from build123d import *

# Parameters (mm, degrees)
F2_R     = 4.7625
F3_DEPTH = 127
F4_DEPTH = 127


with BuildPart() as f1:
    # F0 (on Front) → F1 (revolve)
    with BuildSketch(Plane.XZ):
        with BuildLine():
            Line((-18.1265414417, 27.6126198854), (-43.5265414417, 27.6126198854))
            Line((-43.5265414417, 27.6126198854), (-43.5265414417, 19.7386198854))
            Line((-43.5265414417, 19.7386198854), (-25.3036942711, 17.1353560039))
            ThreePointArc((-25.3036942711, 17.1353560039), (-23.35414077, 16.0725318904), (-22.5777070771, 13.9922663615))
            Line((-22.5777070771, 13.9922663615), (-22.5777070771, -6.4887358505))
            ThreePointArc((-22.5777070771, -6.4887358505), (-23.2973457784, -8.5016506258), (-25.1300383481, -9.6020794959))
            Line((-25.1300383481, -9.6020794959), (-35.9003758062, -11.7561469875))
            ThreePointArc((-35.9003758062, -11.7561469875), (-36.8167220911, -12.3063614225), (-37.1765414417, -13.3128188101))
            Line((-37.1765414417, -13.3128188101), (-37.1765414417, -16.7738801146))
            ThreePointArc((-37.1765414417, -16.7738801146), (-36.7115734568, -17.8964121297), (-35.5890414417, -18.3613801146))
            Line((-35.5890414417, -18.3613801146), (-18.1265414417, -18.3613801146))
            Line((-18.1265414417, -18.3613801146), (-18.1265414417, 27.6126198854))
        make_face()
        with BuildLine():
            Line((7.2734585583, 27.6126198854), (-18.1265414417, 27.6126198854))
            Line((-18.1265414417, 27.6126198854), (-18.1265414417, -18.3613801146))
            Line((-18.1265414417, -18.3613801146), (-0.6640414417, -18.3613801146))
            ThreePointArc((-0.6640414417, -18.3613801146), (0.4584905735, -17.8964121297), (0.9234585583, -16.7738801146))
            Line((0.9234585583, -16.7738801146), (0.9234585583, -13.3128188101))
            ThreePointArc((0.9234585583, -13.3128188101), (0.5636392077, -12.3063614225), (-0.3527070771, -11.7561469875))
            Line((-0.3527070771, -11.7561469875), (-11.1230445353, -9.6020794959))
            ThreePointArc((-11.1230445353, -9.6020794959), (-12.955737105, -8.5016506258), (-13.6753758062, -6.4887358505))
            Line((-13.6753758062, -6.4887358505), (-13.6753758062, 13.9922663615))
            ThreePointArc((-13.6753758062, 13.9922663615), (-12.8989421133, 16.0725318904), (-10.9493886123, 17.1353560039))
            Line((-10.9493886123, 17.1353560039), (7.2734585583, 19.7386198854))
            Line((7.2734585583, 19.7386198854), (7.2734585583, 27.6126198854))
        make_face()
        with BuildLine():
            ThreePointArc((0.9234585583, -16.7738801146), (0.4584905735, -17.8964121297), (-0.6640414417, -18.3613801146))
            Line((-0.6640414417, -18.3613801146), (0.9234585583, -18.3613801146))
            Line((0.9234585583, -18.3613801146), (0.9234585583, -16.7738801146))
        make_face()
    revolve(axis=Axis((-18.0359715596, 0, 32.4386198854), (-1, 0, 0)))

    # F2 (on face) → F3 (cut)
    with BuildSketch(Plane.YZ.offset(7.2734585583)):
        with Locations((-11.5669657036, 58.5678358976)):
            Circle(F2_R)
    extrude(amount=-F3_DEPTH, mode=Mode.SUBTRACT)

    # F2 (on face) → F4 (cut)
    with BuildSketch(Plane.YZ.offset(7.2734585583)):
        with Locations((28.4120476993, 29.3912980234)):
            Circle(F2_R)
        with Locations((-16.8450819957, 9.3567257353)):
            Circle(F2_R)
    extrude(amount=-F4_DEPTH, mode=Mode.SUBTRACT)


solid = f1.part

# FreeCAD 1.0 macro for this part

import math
import FreeCAD as App
import Part
import Sketcher

V = App.Vector
Q = App.Units.Quantity

doc = App.newDocument("Part")
body = doc.addObject("PartDesign::Body", "Body")

# Sketch on XZ plane
sketch1 = doc.addObject("Sketcher::SketchObject", "Sketch")
body.addObject(sketch1)
sketch1.AttachmentSupport = (doc.XZ_Plane, [""])
sketch1.MapMode = "FlatFace"
sketch1.addGeometry([
    Part.LineSegment(V(-43.5, 27.6, 0), V(-43.5, 19.7, 0)),  # 0
    Part.LineSegment(V(-43.5, 19.7, 0), V(-25.3, 17.1, 0)),  # 1
    Part.ArcOfCircle(Part.Circle(V(-25.8, 14, 0), V(0, 0, 1), 3.2), math.radians(0), math.radians(82)),  # 2
    Part.LineSegment(V(-22.6, 14, 0), V(-22.6, -6.5, 0)),  # 3
    Part.ArcOfCircle(Part.Circle(V(-25.8, -6.5, 0), V(0, 0, 1), 3.2), math.radians(-79), math.radians(0)),  # 4
    Part.LineSegment(V(-25.1, -9.6, 0), V(-35.9, -11.8, 0)),  # 5
    Part.ArcOfCircle(Part.Circle(V(-35.6, -13.3, 0), V(0, 0, 1), 1.6), math.radians(101), math.radians(180)),  # 6
    Part.LineSegment(V(-37.2, -13.3, 0), V(-37.2, -16.8, 0)),  # 7
    Part.ArcOfCircle(Part.Circle(V(-35.6, -16.8, 0), V(0, 0, 1), 1.6), math.radians(-180), math.radians(-90)),  # 8
    Part.LineSegment(V(-35.6, -18.4, 0), V(0.9, -18.4, 0)),  # 9
    Part.LineSegment(V(0.9, -18.4, 0), V(0.9, -13.3, 0)),  # 10
    Part.ArcOfCircle(Part.Circle(V(-0.7, -13.3, 0), V(0, 0, 1), 1.6), math.radians(0), math.radians(79)),  # 11
    Part.LineSegment(V(-0.4, -11.8, 0), V(-11.1, -9.6, 0)),  # 12
    Part.ArcOfCircle(Part.Circle(V(-10.5, -6.5, 0), V(0, 0, 1), 3.2), math.radians(180), math.radians(259)),  # 13
    Part.LineSegment(V(-13.7, -6.5, 0), V(-13.7, 14, 0)),  # 14
    Part.ArcOfCircle(Part.Circle(V(-10.5, 14, 0), V(0, 0, 1), 3.2), math.radians(98), math.radians(180)),  # 15
    Part.LineSegment(V(-10.9, 17.1, 0), V(7.3, 19.7, 0)),  # 16
    Part.LineSegment(V(7.3, 19.7, 0), V(7.3, 27.6, 0)),  # 17
    Part.LineSegment(V(7.3, 27.6, 0), V(-43.5, 27.6, 0)),  # 18
], False)
sketch1.addGeometry(Part.LineSegment(V(7.3, 32.4, 0), V(-43.5, 32.4, 0)), True)  # axis
sketch1.addConstraint([
    Sketcher.Constraint("Coincident", 0, 2, 1, 1),
    Sketcher.Constraint("Tangent", 1, 2, 2, 2),
    Sketcher.Constraint("Tangent", 2, 1, 3, 1),
    Sketcher.Constraint("Tangent", 3, 2, 4, 2),
    Sketcher.Constraint("Tangent", 4, 1, 5, 1),
    Sketcher.Constraint("Tangent", 5, 2, 6, 1),
    Sketcher.Constraint("Tangent", 6, 2, 7, 1),
    Sketcher.Constraint("Tangent", 7, 2, 8, 1),
    Sketcher.Constraint("Tangent", 8, 2, 9, 1),
    Sketcher.Constraint("Coincident", 9, 2, 10, 1),
    Sketcher.Constraint("Tangent", 10, 2, 11, 1),
    Sketcher.Constraint("Tangent", 11, 2, 12, 1),
    Sketcher.Constraint("Tangent", 12, 2, 13, 2),
    Sketcher.Constraint("Tangent", 13, 1, 14, 1),
    Sketcher.Constraint("Tangent", 14, 2, 15, 2),
    Sketcher.Constraint("Tangent", 15, 1, 16, 1),
    Sketcher.Constraint("Coincident", 16, 2, 17, 1),
    Sketcher.Constraint("Coincident", 17, 2, 18, 1),
    Sketcher.Constraint("Coincident", 18, 2, 0, 1),
    Sketcher.Constraint("Vertical", 0),
    Sketcher.Constraint("Vertical", 3),
    Sketcher.Constraint("Vertical", 7),
    Sketcher.Constraint("Horizontal", 9),
    Sketcher.Constraint("Vertical", 10),
    Sketcher.Constraint("Vertical", 14),
    Sketcher.Constraint("Vertical", 17),
    Sketcher.Constraint("Horizontal", 18),
    Sketcher.Constraint("Horizontal", 19),
    Sketcher.Constraint("Equal", 2, 4),
    Sketcher.Constraint("Equal", 6, 8),
    Sketcher.Constraint("Equal", 8, 11),
    Sketcher.Constraint("Equal", 4, 13),
    Sketcher.Constraint("Equal", 13, 15),
    Sketcher.Constraint("Horizontal", 6, 3, 11, 3),
    Sketcher.Constraint("Horizontal", 4, 3, 13, 3),
    Sketcher.Constraint("Horizontal", 2, 3, 15, 3),
    Sketcher.Constraint("Horizontal", 5, 2, 11, 2),
    Sketcher.Constraint("Horizontal", 1, 2, 15, 1),
    Sketcher.Constraint("Horizontal", 0, 2, 16, 2),
    Sketcher.Constraint("Vertical", 17, 2, 19, 1),
    Sketcher.Constraint("Vertical", 18, 2, 19, 2),
    Sketcher.Constraint("DistanceX", 18, 2, 18, 1, Q("2 in")),
    Sketcher.Constraint("Radius", 2, Q("0.125 in")),
    Sketcher.Constraint("Radius", 6, Q("0.0625 in")),
    Sketcher.Constraint("DistanceY", 0, 2, 0, 1, Q("0.31 in")),
    Sketcher.Constraint("DistanceY", 16, 2, 19, 1, Q("0.5 in")),
    Sketcher.Constraint("DistanceX", 9, 1, 9, 2, Q("1.4375 in")),
    Sketcher.Constraint("DistanceY", 8, 3, 0, 2, Q("1.4375 in")),
    Sketcher.Constraint("DistanceX", 3, 2, 11, 2, Q("0.875 in")),
    Sketcher.Constraint("DistanceY", 7, 2, 7, 1, Q("3.461061 mm")),
    Sketcher.Constraint("DistanceY", 8, 3, 4, 1, Q("7.171801 mm")),
    Sketcher.Constraint("DistanceY", 3, 2, 3, 1, Q("20.481002 mm")),
    Sketcher.Constraint("DistanceX", 6, 3, -1, 1, Q("35.589041 mm")),
    Sketcher.Constraint("DistanceY", 6, 3, -1, 1, Q("13.312819 mm")),
])
revolution = doc.addObject("PartDesign::Revolution", "Revolution")
body.addObject(revolution)
revolution.Profile = sketch1
revolution.ReferenceAxis = (sketch1, ["Axis0"])
revolution.Angle = 360

# Sketch on YZ plane
sketch2 = doc.addObject("Sketcher::SketchObject", "Sketch001")
body.addObject(sketch2)
sketch2.AttachmentSupport = (doc.YZ_Plane, [""])
sketch2.MapMode = "FlatFace"
sketch2.AttachmentOffset = App.Placement(V(0, 0, 7.273459), App.Rotation())
sketch2.addGeometry(Part.Circle(V(-11.6, 58.6, 0), V(0, 0, 1), 4.8), False)
sketch2.addConstraint([
    Sketcher.Constraint("Diameter", 0, Q("0.375 in")),
    Sketcher.Constraint("DistanceX", 0, 3, -1, 1, Q("11.566966 mm")),
    Sketcher.Constraint("DistanceY", -1, 1, 0, 3, Q("58.567836 mm")),
])
pocket1 = doc.addObject("PartDesign::Pocket", "Pocket")
body.addObject(pocket1)
pocket1.Profile = sketch2
pocket1.Length = Q("5 in")

# Sketch on YZ plane
sketch3 = doc.addObject("Sketcher::SketchObject", "Sketch002")
body.addObject(sketch3)
sketch3.AttachmentSupport = (doc.YZ_Plane, [""])
sketch3.MapMode = "FlatFace"
sketch3.AttachmentOffset = App.Placement(V(0, 0, 7.273459), App.Rotation())
sketch3.addGeometry([
    Part.Circle(V(28.4, 29.4, 0), V(0, 0, 1), 4.8),
    Part.Circle(V(-16.8, 9.4, 0), V(0, 0, 1), 4.8),
], False)
sketch3.addConstraint([
    Sketcher.Constraint("Equal", 0, 1),
    Sketcher.Constraint("Diameter", 0, Q("0.375 in")),
    Sketcher.Constraint("DistanceY", -1, 1, 0, 3, Q("29.391298 mm")),
    Sketcher.Constraint("DistanceX", 1, 3, -1, 1, Q("16.845082 mm")),
    Sketcher.Constraint("DistanceX", 1, 3, 0, 3, Q("45.25713 mm")),
    Sketcher.Constraint("DistanceY", -1, 1, 1, 3, Q("9.356726 mm")),
])
pocket2 = doc.addObject("PartDesign::Pocket", "Pocket001")
body.addObject(pocket2)
pocket2.Profile = sketch3
pocket2.Length = Q("5 in")

doc.recompute()
